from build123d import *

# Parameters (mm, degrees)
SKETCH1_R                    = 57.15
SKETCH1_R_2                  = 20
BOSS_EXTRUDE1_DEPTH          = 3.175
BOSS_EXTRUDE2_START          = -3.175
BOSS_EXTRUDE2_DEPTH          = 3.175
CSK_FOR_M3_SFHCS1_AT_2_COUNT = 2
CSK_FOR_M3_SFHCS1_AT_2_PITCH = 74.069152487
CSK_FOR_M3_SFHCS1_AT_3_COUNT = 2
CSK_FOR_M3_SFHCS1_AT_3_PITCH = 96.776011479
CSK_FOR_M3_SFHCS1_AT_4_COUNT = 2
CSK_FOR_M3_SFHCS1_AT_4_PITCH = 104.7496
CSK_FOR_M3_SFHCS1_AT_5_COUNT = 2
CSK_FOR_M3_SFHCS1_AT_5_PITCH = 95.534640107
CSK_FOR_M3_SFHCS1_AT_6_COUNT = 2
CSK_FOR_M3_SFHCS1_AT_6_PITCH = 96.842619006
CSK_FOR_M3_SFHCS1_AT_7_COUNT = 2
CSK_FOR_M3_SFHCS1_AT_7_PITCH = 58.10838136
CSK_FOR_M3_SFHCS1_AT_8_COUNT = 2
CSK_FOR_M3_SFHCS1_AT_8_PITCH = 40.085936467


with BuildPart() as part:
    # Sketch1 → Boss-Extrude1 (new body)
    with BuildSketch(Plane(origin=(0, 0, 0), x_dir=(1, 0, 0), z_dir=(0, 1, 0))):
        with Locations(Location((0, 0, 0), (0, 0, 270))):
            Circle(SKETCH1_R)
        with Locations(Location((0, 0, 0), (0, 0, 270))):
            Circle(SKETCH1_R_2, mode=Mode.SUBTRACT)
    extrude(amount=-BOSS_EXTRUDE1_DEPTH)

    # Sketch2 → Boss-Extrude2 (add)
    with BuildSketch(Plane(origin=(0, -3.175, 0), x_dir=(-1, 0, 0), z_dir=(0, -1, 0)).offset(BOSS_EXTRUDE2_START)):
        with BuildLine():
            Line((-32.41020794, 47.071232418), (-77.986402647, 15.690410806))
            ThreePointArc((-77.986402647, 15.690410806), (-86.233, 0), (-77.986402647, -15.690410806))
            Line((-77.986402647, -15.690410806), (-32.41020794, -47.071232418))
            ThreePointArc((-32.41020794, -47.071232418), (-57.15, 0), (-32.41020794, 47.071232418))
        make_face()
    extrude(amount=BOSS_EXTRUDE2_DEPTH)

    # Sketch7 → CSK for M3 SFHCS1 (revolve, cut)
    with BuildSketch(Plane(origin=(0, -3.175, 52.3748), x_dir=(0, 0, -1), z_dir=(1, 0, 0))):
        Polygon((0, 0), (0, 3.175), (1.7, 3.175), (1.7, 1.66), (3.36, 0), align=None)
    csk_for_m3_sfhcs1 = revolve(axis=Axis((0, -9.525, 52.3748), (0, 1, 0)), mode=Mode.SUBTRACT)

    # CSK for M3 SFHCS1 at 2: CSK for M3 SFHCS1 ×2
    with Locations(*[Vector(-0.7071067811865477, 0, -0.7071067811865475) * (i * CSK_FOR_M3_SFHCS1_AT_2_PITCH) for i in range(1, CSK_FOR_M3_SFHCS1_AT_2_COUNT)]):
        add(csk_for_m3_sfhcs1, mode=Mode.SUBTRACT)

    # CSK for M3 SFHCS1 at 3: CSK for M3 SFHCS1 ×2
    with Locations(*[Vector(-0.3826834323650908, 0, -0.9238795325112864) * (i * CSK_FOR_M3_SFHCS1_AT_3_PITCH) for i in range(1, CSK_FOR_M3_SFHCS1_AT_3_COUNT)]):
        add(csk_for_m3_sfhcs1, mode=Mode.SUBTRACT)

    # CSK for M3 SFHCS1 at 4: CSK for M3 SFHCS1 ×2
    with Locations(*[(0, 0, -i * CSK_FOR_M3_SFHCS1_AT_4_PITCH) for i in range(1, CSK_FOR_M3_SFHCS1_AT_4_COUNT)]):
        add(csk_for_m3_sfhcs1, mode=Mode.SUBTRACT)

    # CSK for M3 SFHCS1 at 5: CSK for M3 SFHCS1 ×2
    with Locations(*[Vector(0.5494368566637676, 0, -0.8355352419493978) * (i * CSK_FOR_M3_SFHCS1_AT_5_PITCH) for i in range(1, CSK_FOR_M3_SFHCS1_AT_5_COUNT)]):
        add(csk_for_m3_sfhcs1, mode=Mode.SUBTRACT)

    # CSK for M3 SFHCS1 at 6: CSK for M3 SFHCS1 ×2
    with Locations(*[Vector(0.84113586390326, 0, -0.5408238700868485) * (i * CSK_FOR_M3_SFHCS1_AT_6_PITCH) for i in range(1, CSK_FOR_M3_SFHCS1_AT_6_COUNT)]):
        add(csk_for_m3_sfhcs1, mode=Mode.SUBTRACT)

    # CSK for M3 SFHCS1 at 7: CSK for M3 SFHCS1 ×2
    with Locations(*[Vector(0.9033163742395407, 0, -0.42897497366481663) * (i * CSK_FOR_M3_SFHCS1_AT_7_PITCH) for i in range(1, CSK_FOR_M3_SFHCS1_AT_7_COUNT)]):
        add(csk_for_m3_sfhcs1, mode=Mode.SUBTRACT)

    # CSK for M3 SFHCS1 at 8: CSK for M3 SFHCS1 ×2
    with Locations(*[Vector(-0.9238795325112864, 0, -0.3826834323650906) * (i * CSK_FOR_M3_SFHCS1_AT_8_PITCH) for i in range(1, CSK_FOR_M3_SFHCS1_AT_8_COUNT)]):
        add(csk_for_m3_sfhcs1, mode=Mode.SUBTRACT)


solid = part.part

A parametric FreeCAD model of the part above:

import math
import FreeCAD as App
import Part
import Sketcher
from FreeCAD import Vector
Q = App.Units.Quantity


def add_polygon(sketch, points):
    """Adds a closed chain of lines whose ends are joined by coincident constraints."""
    first, n = sketch.GeometryCount, len(points)
    for a, b in zip(points, points[1:] + points[:1]):
        sketch.addGeometry(Part.LineSegment(App.Vector(*a, 0), App.Vector(*b, 0)), False)
    for i in range(n):
        sketch.addConstraint(Sketcher.Constraint("Coincident", first + i, 2, first + (i + 1) % n, 1))

doc = App.newDocument("Part")
body = doc.addObject("PartDesign::Body", "Body")

sketch1 = body.newObject("Sketcher::SketchObject", "Sketch")
sketch1.AttachmentSupport = (doc.getObject("XZ_Plane"), [""])
sketch1.MapMode = "FlatFace"
sketch1.addGeometry(Part.Circle(Vector(0, 0, 0), Vector(0, 0, 1), 57), False)
sketch1.addGeometry(Part.Circle(Vector(0, 0, 0), Vector(0, 0, 1), 20), False)
sketch1.addConstraint(Sketcher.Constraint("Coincident", 0, 3, -1, 1))
sketch1.addConstraint(Sketcher.Constraint("Coincident", 1, 3, -1, 1))
sketch1.addConstraint(Sketcher.Constraint("Diameter", 0, Q("4.5 in")))
sketch1.addConstraint(Sketcher.Constraint("Diameter", 1, 40.0))
pad1 = body.newObject("PartDesign::Pad", "Pad")
pad1.Profile = sketch1
pad1.Length = Q("0.125 in")

sketch2 = body.newObject("Sketcher::SketchObject", "Sketch001")
sketch2.AttachmentSupport = (doc.getObject("XZ_Plane"), [""])
sketch2.MapMode = "FlatFace"
sketch2.addGeometry(Part.LineSegment(Vector(32, -47, 0), Vector(78, -16, 0)), False)
sketch2.addGeometry(Part.ArcOfCircle(Part.Circle(Vector(67, 0, 0), Vector(0, 0, 1), 19), math.radians(-55), math.radians(55)), False)
sketch2.addGeometry(Part.LineSegment(Vector(78, 16, 0), Vector(32, 47, 0)), False)
sketch2.addGeometry(Part.ArcOfCircle(Part.Circle(Vector(0, 0, 0), Vector(0, 0, 1), 57), math.radians(-55), math.radians(55)), False)
sketch2.addConstraint(Sketcher.Constraint("Tangent", 0, 2, 1, 1))
sketch2.addConstraint(Sketcher.Constraint("Tangent", 1, 2, 2, 1))
sketch2.addConstraint(Sketcher.Constraint("Tangent", 2, 2, 3, 2))
sketch2.addConstraint(Sketcher.Constraint("Tangent", 3, 1, 0, 1))
sketch2.addConstraint(Sketcher.Constraint("Coincident", 3, 3, -1, 1))
sketch2.addConstraint(Sketcher.Constraint("PointOnObject", 1, 3, -1))
sketch2.addConstraint(Sketcher.Constraint("Radius", 1, Q("0.75 in")))
sketch2.addConstraint(Sketcher.Constraint("Radius", 3, Q("2.25 in")))
sketch2.addConstraint(Sketcher.Constraint("DistanceX", -1, 1, 1, 3, Q("2.645 in")))
pad2 = body.newObject("PartDesign::Pad", "Pad001")
pad2.Profile = sketch2
pad2.Length = Q("0.125 in")

sketch3 = body.newObject("Sketcher::SketchObject", "Sketch002")
sketch3.AttachmentSupport = (doc.getObject("YZ_Plane"), [""])
sketch3.MapMode = "FlatFace"
add_polygon(sketch3, [(0, 52.4), (-3.2, 52.4), (-3.2, 49), (-1.5, 50.7), (0, 50.7)])
sketch3.addGeometry(Part.LineSegment(Vector(-3.2, 52.4, 0), Vector(0, 52.4, 0)), True)
sketch3.addConstraint(Sketcher.Constraint("Horizontal", 0))
sketch3.addConstraint(Sketcher.Constraint("Vertical", 1))
sketch3.addConstraint(Sketcher.Constraint("Horizontal", 3))
sketch3.addConstraint(Sketcher.Constraint("Vertical", 4))
sketch3.addConstraint(Sketcher.Constraint("Horizontal", 5))
sketch3.addConstraint(Sketcher.Constraint("Coincident", 5, 1, 0, 2))
sketch3.addConstraint(Sketcher.Constraint("PointOnObject", 3, 2, -2))
sketch3.addConstraint(Sketcher.Constraint("PointOnObject", 5, 2, -2))
sketch3.addConstraint(Sketcher.Constraint("Angle", 2, Q("45 deg")))
sketch3.addConstraint(Sketcher.Constraint("DistanceX", 0, 2, 0, 1, Q("0.125 in")))
sketch3.addConstraint(Sketcher.Constraint("DistanceY", -1, 1, 0, 2, Q("2.062 in")))
sketch3.addConstraint(Sketcher.Constraint("DistanceX", 3, 1, 3, 2, 1.515))
sketch3.addConstraint(Sketcher.Constraint("DistanceY", 1, 2, 1, 1, 3.36))
groove = body.newObject("PartDesign::Groove", "Groove")
groove.Profile = sketch3
groove.ReferenceAxis = (sketch3, ["Axis0"])
groove.Angle = 360
doc.recompute()

datumline = body.newObject("PartDesign::Line", "DatumLine")
datumline.Placement = App.Placement(Vector(0, 0, 0), App.Rotation(Vector(0, 0, 1), Vector(-0.707106781, 0, -0.707106781)))
linearpattern = body.newObject("PartDesign::LinearPattern", "LinearPattern")
linearpattern.Originals = [groove]
linearpattern.Direction = (datumline, [""])
linearpattern.Mode = "offset"
linearpattern.Offset = 74.069152
linearpattern.Occurrences = 2
body.Tip = linearpattern
doc.recompute()

datumline2 = body.newObject("PartDesign::Line", "DatumLine001")
datumline2.Placement = App.Placement(Vector(0, 0, 0), App.Rotation(Vector(0, 0, 1), Vector(-0.382683432, 0, -0.923879533)))
linearpattern2 = body.newObject("PartDesign::LinearPattern", "LinearPattern001")
linearpattern2.Originals = [groove]
linearpattern2.Direction = (datumline2, [""])
linearpattern2.Mode = "offset"
linearpattern2.Offset = 96.776011
linearpattern2.Occurrences = 2
body.Tip = linearpattern2
doc.recompute()

linearpattern3 = body.newObject("PartDesign::LinearPattern", "LinearPattern002")
linearpattern3.Originals = [groove]
linearpattern3.Direction = (doc.getObject("Z_Axis"), [""])
linearpattern3.Mode = "offset"
linearpattern3.Offset = Q("4.124 in")
linearpattern3.Occurrences = 2
linearpattern3.Reversed = True
body.Tip = linearpattern3
doc.recompute()

datumline3 = body.newObject("PartDesign::Line", "DatumLine002")
datumline3.Placement = App.Placement(Vector(0, 0, 0), App.Rotation(Vector(0, 0, 1), Vector(0.549436857, 0, -0.835535242)))
linearpattern4 = body.newObject("PartDesign::LinearPattern", "LinearPattern003")
linearpattern4.Originals = [groove]
linearpattern4.Direction = (datumline3, [""])
linearpattern4.Mode = "offset"
linearpattern4.Offset = 95.53464
linearpattern4.Occurrences = 2
body.Tip = linearpattern4
doc.recompute()

datumline4 = body.newObject("PartDesign::Line", "DatumLine003")
datumline4.Placement = App.Placement(Vector(0, 0, 0), App.Rotation(Vector(0, 0, 1), Vector(0.841135864, 0, -0.54082387)))
linearpattern5 = body.newObject("PartDesign::LinearPattern", "LinearPattern004")
linearpattern5.Originals = [groove]
linearpattern5.Direction = (datumline4, [""])
linearpattern5.Mode = "offset"
linearpattern5.Offset = 96.842619
linearpattern5.Occurrences = 2
body.Tip = linearpattern5
doc.recompute()

datumline5 = body.newObject("PartDesign::Line", "DatumLine004")
datumline5.Placement = App.Placement(Vector(0, 0, 0), App.Rotation(Vector(0, 0, 1), Vector(0.903316374, 0, -0.428974974)))
linearpattern6 = body.newObject("PartDesign::LinearPattern", "LinearPattern005")
linearpattern6.Originals = [groove]
linearpattern6.Direction = (datumline5, [""])
linearpattern6.Mode = "offset"
linearpattern6.Offset = 58.108381
linearpattern6.Occurrences = 2
body.Tip = linearpattern6
doc.recompute()

datumline6 = body.newObject("PartDesign::Line", "DatumLine005")
datumline6.Placement = App.Placement(Vector(0, 0, 0), App.Rotation(Vector(0, 0, 1), Vector(-0.923879533, 0, -0.382683432)))
linearpattern7 = body.newObject("PartDesign::LinearPattern", "LinearPattern006")
linearpattern7.Originals = [groove]
linearpattern7.Direction = (datumline6, [""])
linearpattern7.Mode = "offset"
linearpattern7.Offset = 40.085936
linearpattern7.Occurrences = 2
body.Tip = linearpattern7

doc.recompute()
